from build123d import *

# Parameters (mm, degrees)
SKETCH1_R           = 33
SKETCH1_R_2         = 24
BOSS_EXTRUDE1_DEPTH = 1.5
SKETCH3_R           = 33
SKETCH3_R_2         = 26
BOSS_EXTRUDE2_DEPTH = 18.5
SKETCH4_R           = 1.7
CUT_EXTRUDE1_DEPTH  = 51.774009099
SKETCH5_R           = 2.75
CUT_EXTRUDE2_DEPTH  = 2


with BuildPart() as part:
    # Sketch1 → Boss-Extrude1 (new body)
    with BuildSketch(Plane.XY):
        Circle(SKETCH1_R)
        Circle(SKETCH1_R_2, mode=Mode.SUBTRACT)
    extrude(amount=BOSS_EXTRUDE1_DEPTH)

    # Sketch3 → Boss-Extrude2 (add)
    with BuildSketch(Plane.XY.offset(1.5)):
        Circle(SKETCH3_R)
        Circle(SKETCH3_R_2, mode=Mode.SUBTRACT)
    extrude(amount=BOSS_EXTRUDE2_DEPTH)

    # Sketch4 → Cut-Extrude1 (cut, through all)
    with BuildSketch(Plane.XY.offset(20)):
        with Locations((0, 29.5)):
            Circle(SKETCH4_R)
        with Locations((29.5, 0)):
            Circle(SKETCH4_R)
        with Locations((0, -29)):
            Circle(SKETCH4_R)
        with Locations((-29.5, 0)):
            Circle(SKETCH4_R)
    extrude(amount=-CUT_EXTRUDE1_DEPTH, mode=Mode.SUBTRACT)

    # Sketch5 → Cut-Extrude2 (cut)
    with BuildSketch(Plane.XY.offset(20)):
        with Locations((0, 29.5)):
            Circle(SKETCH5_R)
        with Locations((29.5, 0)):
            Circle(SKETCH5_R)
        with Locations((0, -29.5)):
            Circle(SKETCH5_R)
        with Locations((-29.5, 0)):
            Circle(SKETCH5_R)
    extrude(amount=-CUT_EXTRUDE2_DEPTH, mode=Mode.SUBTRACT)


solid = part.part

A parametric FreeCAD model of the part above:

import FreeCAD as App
import Part
import Sketcher
Q = App.Units.Quantity

doc = App.newDocument("Part")
body = doc.addObject("PartDesign::Body", "Body")

sketch1 = body.newObject("Sketcher::SketchObject", "Sketch")
sketch1.AttachmentSupport = (doc.getObject("XY_Plane"), [""])
sketch1.MapMode = "FlatFace"
sketch1.addGeometry(Part.Circle(App.Vector(0, 0, 0), App.Vector(0, 0, 1), 33), False)
sketch1.addGeometry(Part.Circle(App.Vector(0, 0, 0), App.Vector(0, 0, 1), 24), False)
sketch1.addConstraint(Sketcher.Constraint("Coincident", 0, 3, -1, 1))
sketch1.addConstraint(Sketcher.Constraint("Coincident", 1, 3, -1, 1))
sketch1.addConstraint(Sketcher.Constraint("Diameter", 0, Q("66 mm")))
sketch1.addConstraint(Sketcher.Constraint("Diameter", 1, Q("48 mm")))
pad1 = body.newObject("PartDesign::Pad", "Pad")
pad1.Profile = sketch1
pad1.Length = 1.5

sketch2 = body.newObject("Sketcher::SketchObject", "Sketch001")
sketch2.AttachmentSupport = (doc.getObject("XY_Plane"), [""])
sketch2.MapMode = "FlatFace"
sketch2.AttachmentOffset = App.Placement(App.Vector(0, 0, 1.5), App.Rotation())
sketch2.addGeometry(Part.Circle(App.Vector(0, 0, 0), App.Vector(0, 0, 1), 33), False)
sketch2.addGeometry(Part.Circle(App.Vector(0, 0, 0), App.Vector(0, 0, 1), 26), False)
sketch2.addConstraint(Sketcher.Constraint("Coincident", 0, 3, -1, 1))
sketch2.addConstraint(Sketcher.Constraint("Coincident", 1, 3, -1, 1))
sketch2.addConstraint(Sketcher.Constraint("Diameter", 0, Q("66 mm")))
sketch2.addConstraint(Sketcher.Constraint("Diameter", 1, Q("52 mm")))
pad2 = body.newObject("PartDesign::Pad", "Pad001")
pad2.Profile = sketch2
pad2.Length = 18.5

sketch3 = body.newObject("Sketcher::SketchObject", "Sketch002")
sketch3.AttachmentSupport = (doc.getObject("XY_Plane"), [""])
sketch3.MapMode = "FlatFace"
sketch3.AttachmentOffset = App.Placement(App.Vector(0, 0, 20), App.Rotation())
sketch3.addGeometry(Part.Circle(App.Vector(0, 29.5, 0), App.Vector(0, 0, 1), 1.7), False)
sketch3.addGeometry(Part.Circle(App.Vector(29.5, 0, 0), App.Vector(0, 0, 1), 1.7), False)
sketch3.addGeometry(Part.Circle(App.Vector(0, -29, 0), App.Vector(0, 0, 1), 1.7), False)
sketch3.addGeometry(Part.Circle(App.Vector(-29.5, 0, 0), App.Vector(0, 0, 1), 1.7), False)
sketch3.addConstraint(Sketcher.Constraint("Equal", 0, 1))
sketch3.addConstraint(Sketcher.Constraint("Equal", 1, 2))
sketch3.addConstraint(Sketcher.Constraint("Equal", 2, 3))
sketch3.addConstraint(Sketcher.Constraint("Symmetric", 1, 3, 3, 3, -1, 1))
sketch3.addConstraint(Sketcher.Constraint("PointOnObject", 0, 3, -2))
sketch3.addConstraint(Sketcher.Constraint("PointOnObject", 1, 3, -1))
sketch3.addConstraint(Sketcher.Constraint("PointOnObject", 2, 3, -2))
sketch3.addConstraint(Sketcher.Constraint("Diameter", 0, Q("3.4 mm")))
sketch3.addConstraint(Sketcher.Constraint("DistanceY", 2, 3, -1, 1, Q("29 mm")))
sketch3.addConstraint(Sketcher.Constraint("DistanceX", 3, 3, 1, 3, Q("59 mm")))
sketch3.addConstraint(Sketcher.Constraint("DistanceY", -1, 1, 0, 3, Q("29.5 mm")))
pocket1 = body.newObject("PartDesign::Pocket", "Pocket")
pocket1.Profile = sketch3
pocket1.Type = "ThroughAll"

sketch4 = body.newObject("Sketcher::SketchObject", "Sketch003")
sketch4.AttachmentSupport = (doc.getObject("XY_Plane"), [""])
sketch4.MapMode = "FlatFace"
sketch4.AttachmentOffset = App.Placement(App.Vector(0, 0, 20), App.Rotation())
sketch4.addGeometry(Part.Circle(App.Vector(0, 29.5, 0), App.Vector(0, 0, 1), 2.8), False)
sketch4.addGeometry(Part.Circle(App.Vector(29.5, 0, 0), App.Vector(0, 0, 1), 2.8), False)
sketch4.addGeometry(Part.Circle(App.Vector(0, -29.5, 0), App.Vector(0, 0, 1), 2.8), False)
sketch4.addGeometry(Part.Circle(App.Vector(-29.5, 0, 0), App.Vector(0, 0, 1), 2.8), False)
sketch4.addConstraint(Sketcher.Constraint("Equal", 0, 1))
sketch4.addConstraint(Sketcher.Constraint("Equal", 1, 2))
sketch4.addConstraint(Sketcher.Constraint("Equal", 2, 3))
sketch4.addConstraint(Sketcher.Constraint("Symmetric", 0, 3, 2, 3, -1, 1))
sketch4.addConstraint(Sketcher.Constraint("Symmetric", 1, 3, 3, 3, -1, 1))
sketch4.addConstraint(Sketcher.Constraint("PointOnObject", 0, 3, -2))
sketch4.addConstraint(Sketcher.Constraint("PointOnObject", 1, 3, -1))
sketch4.addConstraint(Sketcher.Constraint("Diameter", 0, Q("5.5 mm")))
sketch4.addConstraint(Sketcher.Constraint("DistanceY", 2, 3, 0, 3, Q("59 mm")))
sketch4.addConstraint(Sketcher.Constraint("DistanceX", 3, 3, 1, 3, Q("59 mm")))
pocket2 = body.newObject("PartDesign::Pocket", "Pocket001")
pocket2.Profile = sketch4
pocket2.Length = 2

doc.recompute()
